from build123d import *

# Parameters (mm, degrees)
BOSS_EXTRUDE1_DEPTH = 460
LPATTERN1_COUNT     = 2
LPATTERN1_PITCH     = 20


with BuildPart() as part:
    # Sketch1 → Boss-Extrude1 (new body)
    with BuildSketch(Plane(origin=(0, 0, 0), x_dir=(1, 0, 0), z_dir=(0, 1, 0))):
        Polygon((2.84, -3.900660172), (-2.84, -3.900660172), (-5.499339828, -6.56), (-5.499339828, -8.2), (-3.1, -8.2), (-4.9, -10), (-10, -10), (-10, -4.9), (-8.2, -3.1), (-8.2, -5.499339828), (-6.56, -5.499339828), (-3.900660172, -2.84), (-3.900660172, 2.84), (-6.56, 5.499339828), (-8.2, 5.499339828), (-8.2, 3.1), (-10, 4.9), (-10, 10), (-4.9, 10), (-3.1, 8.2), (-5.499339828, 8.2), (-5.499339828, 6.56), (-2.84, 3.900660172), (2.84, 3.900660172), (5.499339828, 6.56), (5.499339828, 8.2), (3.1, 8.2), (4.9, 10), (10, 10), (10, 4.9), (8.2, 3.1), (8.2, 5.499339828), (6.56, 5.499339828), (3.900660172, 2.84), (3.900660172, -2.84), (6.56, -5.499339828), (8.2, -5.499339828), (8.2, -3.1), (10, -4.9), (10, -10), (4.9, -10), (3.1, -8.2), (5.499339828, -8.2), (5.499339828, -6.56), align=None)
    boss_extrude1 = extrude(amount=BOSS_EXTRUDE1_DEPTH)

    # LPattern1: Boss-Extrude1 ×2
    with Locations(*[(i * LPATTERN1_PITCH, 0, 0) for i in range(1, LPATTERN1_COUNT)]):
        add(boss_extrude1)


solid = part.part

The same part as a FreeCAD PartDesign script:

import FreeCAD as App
import Part
import Sketcher

V = App.Vector
Q = App.Units.Quantity


def add_polygon(sketch, points):
    """Adds a closed chain of lines whose ends are joined by coincident constraints."""
    first, n = sketch.GeometryCount, len(points)
    for a, b in zip(points, points[1:] + points[:1]):
        sketch.addGeometry(Part.LineSegment(App.Vector(*a, 0), App.Vector(*b, 0)), False)
    for i in range(n):
        sketch.addConstraint(Sketcher.Constraint("Coincident", first + i, 2, first + (i + 1) % n, 1))

doc = App.newDocument("Part")
body = doc.addObject("PartDesign::Body", "Body")

# Sketch on XZ plane
sketch1 = body.newObject("Sketcher::SketchObject", "Sketch")
sketch1.AttachmentSupport = (doc.getObject("XZ_Plane"), [""])
sketch1.MapMode = "FlatFace"
add_polygon(sketch1, [(-2.8, 3.9), (2.8, 3.9), (5.5, 6.6), (5.5, 8.2), (3.1, 8.2), (4.9, 10), (10, 10), (10, 4.9), (8.2, 3.1), (8.2, 5.5), (6.6, 5.5), (3.9, 2.8), (3.9, -2.8), (6.6, -5.5), (8.2, -5.5), (8.2, -3.1), (10, -4.9), (10, -10), (4.9, -10), (3.1, -8.2), (5.5, -8.2), (5.5, -6.6), (2.8, -3.9), (-2.8, -3.9), (-5.5, -6.6), (-5.5, -8.2), (-3.1, -8.2), (-4.9, -10), (-10, -10), (-10, -4.9), (-8.2, -3.1), (-8.2, -5.5), (-6.6, -5.5), (-3.9, -2.8), (-3.9, 2.8), (-6.6, 5.5), (-8.2, 5.5), (-8.2, 3.1), (-10, 4.9), (-10, 10), (-4.9, 10), (-3.1, 8.2), (-5.5, 8.2), (-5.5, 6.6)])  # lines 0-43
sketch1.addConstraint([
    Sketcher.Constraint("Horizontal", 0),
    Sketcher.Constraint("Vertical", 2),
    Sketcher.Constraint("Horizontal", 3),
    Sketcher.Constraint("Horizontal", 5),
    Sketcher.Constraint("Vertical", 6),
    Sketcher.Constraint("Vertical", 8),
    Sketcher.Constraint("Horizontal", 9),
    Sketcher.Constraint("Vertical", 11),
    Sketcher.Constraint("Horizontal", 13),
    Sketcher.Constraint("Vertical", 14),
    Sketcher.Constraint("Vertical", 16),
    Sketcher.Constraint("Horizontal", 17),
    Sketcher.Constraint("Horizontal", 19),
    Sketcher.Constraint("Vertical", 20),
    Sketcher.Constraint("Horizontal", 22),
    Sketcher.Constraint("Vertical", 24),
    Sketcher.Constraint("Horizontal", 25),
    Sketcher.Constraint("Horizontal", 27),
    Sketcher.Constraint("Vertical", 28),
    Sketcher.Constraint("Vertical", 30),
    Sketcher.Constraint("Horizontal", 31),
    Sketcher.Constraint("Vertical", 33),
    Sketcher.Constraint("Horizontal", 35),
    Sketcher.Constraint("Vertical", 36),
    Sketcher.Constraint("Vertical", 38),
    Sketcher.Constraint("Horizontal", 39),
    Sketcher.Constraint("Horizontal", 41),
    Sketcher.Constraint("Vertical", 42),
    Sketcher.Constraint("Symmetric", 0, 2, 22, 2, -1, 1),
    Sketcher.Constraint("Symmetric", 1, 2, 23, 2, -1, 1),
    Sketcher.Constraint("Symmetric", 3, 2, 25, 2, -1, 1),
    Sketcher.Constraint("Symmetric", 4, 2, 26, 2, -1, 1),
    Sketcher.Constraint("Symmetric", 6, 2, 28, 2, -1, 1),
    Sketcher.Constraint("Symmetric", 7, 2, 29, 2, -1, 1),
    Sketcher.Constraint("Symmetric", 9, 2, 31, 2, -1, 1),
    Sketcher.Constraint("Symmetric", 10, 2, 32, 2, -1, 1),
    Sketcher.Constraint("Symmetric", 12, 2, 34, 2, -1, 1),
    Sketcher.Constraint("Symmetric", 14, 2, 36, 2, -1, 1),
    Sketcher.Constraint("Symmetric", 15, 2, 37, 2, -1, 1),
    Sketcher.Constraint("Symmetric", 17, 2, 39, 2, -1, 1),
    Sketcher.Constraint("Symmetric", 18, 2, 40, 2, -1, 1),
    Sketcher.Constraint("Symmetric", 20, 2, 42, 2, -1, 1),
    Sketcher.Constraint("Symmetric", 20, 2, 23, 2, -2),
    Sketcher.Constraint("Symmetric", 18, 2, 25, 2, -2),
    Sketcher.Constraint("Symmetric", 17, 2, 26, 2, -2),
    Sketcher.Constraint("Symmetric", 15, 2, 28, 2, -2),
    Sketcher.Constraint("Symmetric", 14, 2, 29, 2, -2),
    Sketcher.Constraint("Symmetric", 12, 2, 31, 2, -2),
    Sketcher.Constraint("Parallel", 1, 4),
    Sketcher.Constraint("Parallel", 4, 7),
    Sketcher.Constraint("Parallel", 7, 10),
    Sketcher.Constraint("Perpendicular", 10, 12),
    Sketcher.Constraint("Parallel", 12, 15),
    Sketcher.Constraint("Parallel", 18, 21),
    Sketcher.Constraint("Perpendicular", 32, 34),
    Sketcher.Constraint("Parallel", 40, 43),
    Sketcher.Constraint("Equal", 35, 2),
    Sketcher.Constraint("Equal", 39, 6),
    Sketcher.Constraint("Equal", 41, 8),
    Sketcher.Constraint("Equal", 22, 11),
    Sketcher.Constraint("Equal", 4, 7),
    Sketcher.Constraint("Equal", 1, 10),
    Sketcher.Constraint("DistanceX", 5, 1, 5, 2, Q("5.1 mm")),
    Sketcher.Constraint("DistanceY", -1, 1, 4, 2, Q("10 mm")),
    Sketcher.Constraint("DistanceY", 15, 2, 7, 2, Q("8 mm")),
    Sketcher.Constraint("DistanceX", 0, 1, 0, 2, Q("5.68 mm")),
    Sketcher.Constraint("DistanceX", 9, 2, 9, 1, Q("1.64 mm")),
    Sketcher.Constraint("DistanceX", 3, 2, 3, 1, Q("2.39934 mm")),
])
pad1 = body.newObject("PartDesign::Pad", "Pad")
pad1.Profile = sketch1
pad1.Length = 460
pad1.Reversed = True
doc.recompute()

linearpattern = body.newObject("PartDesign::LinearPattern", "LinearPattern")
linearpattern.Originals = [pad1]
linearpattern.Direction = (doc.getObject("X_Axis"), [""])
linearpattern.Mode = "offset"
linearpattern.Offset = 20
linearpattern.Occurrences = 2
body.Tip = linearpattern

doc.recompute()
